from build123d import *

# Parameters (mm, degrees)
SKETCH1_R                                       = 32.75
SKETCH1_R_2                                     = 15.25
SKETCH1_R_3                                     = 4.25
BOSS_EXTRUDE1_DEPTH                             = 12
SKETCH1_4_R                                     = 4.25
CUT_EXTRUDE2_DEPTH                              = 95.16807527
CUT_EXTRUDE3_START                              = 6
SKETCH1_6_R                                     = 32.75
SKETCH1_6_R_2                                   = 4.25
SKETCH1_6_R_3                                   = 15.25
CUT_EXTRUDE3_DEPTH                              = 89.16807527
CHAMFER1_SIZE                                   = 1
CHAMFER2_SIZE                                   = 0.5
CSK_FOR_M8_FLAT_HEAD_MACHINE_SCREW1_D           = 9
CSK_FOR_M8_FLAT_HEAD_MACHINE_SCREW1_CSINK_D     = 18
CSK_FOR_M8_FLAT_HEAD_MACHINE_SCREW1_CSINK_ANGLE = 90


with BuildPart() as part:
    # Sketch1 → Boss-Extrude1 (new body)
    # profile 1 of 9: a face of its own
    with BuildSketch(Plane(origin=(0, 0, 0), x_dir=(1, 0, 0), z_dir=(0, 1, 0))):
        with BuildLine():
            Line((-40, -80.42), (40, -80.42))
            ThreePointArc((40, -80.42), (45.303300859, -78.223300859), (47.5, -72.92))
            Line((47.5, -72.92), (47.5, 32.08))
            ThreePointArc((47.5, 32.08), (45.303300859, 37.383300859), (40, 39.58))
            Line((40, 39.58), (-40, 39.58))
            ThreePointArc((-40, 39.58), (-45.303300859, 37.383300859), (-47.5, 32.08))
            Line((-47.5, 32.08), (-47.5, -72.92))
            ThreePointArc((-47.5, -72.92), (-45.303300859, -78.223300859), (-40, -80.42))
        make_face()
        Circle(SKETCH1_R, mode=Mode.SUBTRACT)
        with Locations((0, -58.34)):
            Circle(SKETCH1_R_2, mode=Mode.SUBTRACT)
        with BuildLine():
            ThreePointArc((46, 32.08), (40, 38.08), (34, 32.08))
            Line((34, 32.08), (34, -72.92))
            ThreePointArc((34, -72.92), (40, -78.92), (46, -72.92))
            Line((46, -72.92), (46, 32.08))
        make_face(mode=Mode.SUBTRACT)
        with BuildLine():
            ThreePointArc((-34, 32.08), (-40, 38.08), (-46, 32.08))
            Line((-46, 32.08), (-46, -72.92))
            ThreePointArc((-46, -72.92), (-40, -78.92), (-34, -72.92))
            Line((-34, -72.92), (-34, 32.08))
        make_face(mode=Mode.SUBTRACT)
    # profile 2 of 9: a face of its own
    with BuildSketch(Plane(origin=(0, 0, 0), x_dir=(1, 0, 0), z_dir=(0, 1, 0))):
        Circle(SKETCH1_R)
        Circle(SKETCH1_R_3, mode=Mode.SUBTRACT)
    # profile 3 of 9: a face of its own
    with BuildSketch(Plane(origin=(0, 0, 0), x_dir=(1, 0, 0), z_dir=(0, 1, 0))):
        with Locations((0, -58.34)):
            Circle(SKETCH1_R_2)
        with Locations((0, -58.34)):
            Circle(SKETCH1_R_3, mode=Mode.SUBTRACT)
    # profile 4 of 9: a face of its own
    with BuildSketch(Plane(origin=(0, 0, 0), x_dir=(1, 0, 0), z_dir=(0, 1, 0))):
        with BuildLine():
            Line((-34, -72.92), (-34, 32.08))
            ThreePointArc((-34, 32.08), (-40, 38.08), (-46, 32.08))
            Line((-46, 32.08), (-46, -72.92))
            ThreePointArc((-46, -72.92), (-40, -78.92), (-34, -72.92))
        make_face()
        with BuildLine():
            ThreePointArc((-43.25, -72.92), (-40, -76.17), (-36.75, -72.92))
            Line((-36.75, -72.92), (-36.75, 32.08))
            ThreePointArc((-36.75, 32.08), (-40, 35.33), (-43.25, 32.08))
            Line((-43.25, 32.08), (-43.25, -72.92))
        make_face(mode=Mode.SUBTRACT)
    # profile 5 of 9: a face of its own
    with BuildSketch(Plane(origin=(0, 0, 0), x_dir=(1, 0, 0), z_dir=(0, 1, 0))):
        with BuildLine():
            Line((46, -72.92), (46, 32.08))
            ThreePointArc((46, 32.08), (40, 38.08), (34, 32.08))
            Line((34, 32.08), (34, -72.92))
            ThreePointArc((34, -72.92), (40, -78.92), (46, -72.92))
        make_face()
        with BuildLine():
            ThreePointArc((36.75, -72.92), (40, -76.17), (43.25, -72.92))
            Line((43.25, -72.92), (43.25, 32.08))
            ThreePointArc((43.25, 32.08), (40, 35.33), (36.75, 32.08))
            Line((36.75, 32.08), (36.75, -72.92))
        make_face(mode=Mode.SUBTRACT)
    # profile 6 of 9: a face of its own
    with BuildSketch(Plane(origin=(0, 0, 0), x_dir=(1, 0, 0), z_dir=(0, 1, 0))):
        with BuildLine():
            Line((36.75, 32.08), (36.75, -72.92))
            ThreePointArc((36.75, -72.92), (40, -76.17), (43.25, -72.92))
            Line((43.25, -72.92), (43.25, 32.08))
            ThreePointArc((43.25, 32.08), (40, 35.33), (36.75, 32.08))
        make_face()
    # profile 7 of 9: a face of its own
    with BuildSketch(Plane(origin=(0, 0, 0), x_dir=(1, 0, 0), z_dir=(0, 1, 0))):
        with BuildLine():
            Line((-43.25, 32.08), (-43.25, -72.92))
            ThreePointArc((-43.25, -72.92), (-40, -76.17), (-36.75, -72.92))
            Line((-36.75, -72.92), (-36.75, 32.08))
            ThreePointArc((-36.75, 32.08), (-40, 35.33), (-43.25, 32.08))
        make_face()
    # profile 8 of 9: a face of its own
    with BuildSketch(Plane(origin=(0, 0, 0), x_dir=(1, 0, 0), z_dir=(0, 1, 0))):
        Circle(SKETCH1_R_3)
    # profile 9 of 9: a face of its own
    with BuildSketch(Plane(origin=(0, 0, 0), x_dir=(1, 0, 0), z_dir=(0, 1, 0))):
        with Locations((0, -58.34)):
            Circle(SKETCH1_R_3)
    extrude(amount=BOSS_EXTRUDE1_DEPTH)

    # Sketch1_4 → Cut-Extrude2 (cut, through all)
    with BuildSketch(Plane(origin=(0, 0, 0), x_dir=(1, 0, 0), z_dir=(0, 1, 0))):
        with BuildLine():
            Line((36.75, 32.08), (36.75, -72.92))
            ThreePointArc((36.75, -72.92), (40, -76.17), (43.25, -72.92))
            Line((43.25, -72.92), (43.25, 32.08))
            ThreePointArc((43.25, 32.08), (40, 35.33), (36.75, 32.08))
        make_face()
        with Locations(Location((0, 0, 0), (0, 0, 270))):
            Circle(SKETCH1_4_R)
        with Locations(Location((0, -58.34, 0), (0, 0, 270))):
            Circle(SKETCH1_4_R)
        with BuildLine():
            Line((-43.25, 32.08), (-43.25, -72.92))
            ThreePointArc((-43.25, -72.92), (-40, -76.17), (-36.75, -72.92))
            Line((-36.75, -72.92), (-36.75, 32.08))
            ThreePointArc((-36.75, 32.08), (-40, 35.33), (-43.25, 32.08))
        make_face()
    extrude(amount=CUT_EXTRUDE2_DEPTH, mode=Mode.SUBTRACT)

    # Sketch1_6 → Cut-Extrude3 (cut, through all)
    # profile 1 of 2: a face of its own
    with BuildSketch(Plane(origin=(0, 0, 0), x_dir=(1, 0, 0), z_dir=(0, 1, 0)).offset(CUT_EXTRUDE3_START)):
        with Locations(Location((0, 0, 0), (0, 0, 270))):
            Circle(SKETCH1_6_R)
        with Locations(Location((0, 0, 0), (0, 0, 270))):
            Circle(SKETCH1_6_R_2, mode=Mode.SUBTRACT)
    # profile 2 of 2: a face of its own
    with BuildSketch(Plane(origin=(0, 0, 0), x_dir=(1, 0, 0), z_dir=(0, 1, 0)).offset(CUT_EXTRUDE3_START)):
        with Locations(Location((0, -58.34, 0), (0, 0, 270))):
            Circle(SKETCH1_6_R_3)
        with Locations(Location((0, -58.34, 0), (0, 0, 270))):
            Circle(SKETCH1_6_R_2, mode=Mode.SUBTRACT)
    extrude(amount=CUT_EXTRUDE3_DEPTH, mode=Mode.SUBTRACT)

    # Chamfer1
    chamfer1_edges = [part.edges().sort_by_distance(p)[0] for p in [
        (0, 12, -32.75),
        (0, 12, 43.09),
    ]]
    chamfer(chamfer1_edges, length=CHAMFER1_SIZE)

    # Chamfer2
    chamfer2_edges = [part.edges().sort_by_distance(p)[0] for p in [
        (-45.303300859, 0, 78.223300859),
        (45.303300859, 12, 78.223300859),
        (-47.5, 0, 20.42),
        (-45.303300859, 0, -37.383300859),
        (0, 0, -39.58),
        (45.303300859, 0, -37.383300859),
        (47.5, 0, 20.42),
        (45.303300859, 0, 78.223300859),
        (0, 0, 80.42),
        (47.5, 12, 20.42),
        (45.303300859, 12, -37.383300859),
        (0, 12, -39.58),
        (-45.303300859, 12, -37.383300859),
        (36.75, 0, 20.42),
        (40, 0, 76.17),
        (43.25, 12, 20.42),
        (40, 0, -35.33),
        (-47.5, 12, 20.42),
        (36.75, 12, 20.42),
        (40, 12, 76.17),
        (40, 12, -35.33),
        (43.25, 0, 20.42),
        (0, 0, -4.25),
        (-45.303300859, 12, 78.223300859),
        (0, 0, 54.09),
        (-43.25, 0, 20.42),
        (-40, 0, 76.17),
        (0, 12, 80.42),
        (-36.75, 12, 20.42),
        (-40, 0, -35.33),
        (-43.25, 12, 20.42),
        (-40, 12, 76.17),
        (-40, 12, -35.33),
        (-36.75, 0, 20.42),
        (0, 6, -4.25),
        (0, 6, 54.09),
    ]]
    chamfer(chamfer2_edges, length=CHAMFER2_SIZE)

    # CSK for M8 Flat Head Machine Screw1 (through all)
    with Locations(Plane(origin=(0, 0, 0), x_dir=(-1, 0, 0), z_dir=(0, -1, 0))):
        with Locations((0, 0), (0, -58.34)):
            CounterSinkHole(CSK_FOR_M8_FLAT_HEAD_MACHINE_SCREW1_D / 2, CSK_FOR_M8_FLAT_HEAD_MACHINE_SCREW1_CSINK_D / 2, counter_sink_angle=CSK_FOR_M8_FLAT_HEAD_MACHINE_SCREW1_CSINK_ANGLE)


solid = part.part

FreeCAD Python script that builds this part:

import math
import FreeCAD as App
import Part
import Sketcher
from FreeCAD import Vector


def edges_at(feature, points):
    """Names of the edges that pass closest to the given points."""
    edges = feature.Shape.Edges
    near = lambda p: min(range(len(edges)), key=lambda i: edges[i].distToShape(Part.Vertex(*p))[0])
    return sorted({f"Edge{near(p) + 1}" for p in points})

doc = App.newDocument("Part")
body = doc.addObject("PartDesign::Body", "Body")

# Sketch on XZ plane
sketch1 = body.newObject("Sketcher::SketchObject", "Sketch")
sketch1.AttachmentSupport = (doc.getObject("XZ_Plane"), [""])
sketch1.MapMode = "FlatFace"
sketch1.addGeometry([
    Part.LineSegment(Vector(-40, 80.42, 0), Vector(40, 80.42, 0)),  # 0
    Part.ArcOfCircle(Part.Circle(Vector(40, 72.92, 0), Vector(0, 0, 1), 7.5), math.radians(0), math.radians(90)),  # 1
    Part.LineSegment(Vector(47.5, 72.92, 0), Vector(47.5, -32.08, 0)),  # 2
    Part.ArcOfCircle(Part.Circle(Vector(40, -32.08, 0), Vector(0, 0, 1), 7.5), math.radians(-90), math.radians(0)),  # 3
    Part.LineSegment(Vector(40, -39.58, 0), Vector(-40, -39.58, 0)),  # 4
    Part.ArcOfCircle(Part.Circle(Vector(-40, -32.08, 0), Vector(0, 0, 1), 7.5), math.radians(180), math.radians(270)),  # 5
    Part.LineSegment(Vector(-47.5, -32.08, 0), Vector(-47.5, 72.92, 0)),  # 6
    Part.ArcOfCircle(Part.Circle(Vector(-40, 72.92, 0), Vector(0, 0, 1), 7.5), math.radians(90), math.radians(180)),  # 7
], False)
sketch1.addConstraint([
    Sketcher.Constraint("Tangent", 0, 2, 1, 2),
    Sketcher.Constraint("Tangent", 1, 1, 2, 1),
    Sketcher.Constraint("Tangent", 2, 2, 3, 2),
    Sketcher.Constraint("Tangent", 3, 1, 4, 1),
    Sketcher.Constraint("Tangent", 4, 2, 5, 2),
    Sketcher.Constraint("Tangent", 5, 1, 6, 1),
    Sketcher.Constraint("Tangent", 6, 2, 7, 2),
    Sketcher.Constraint("Tangent", 7, 1, 0, 1),
    Sketcher.Constraint("Horizontal", 0),
    Sketcher.Constraint("Vertical", 2),
    Sketcher.Constraint("Horizontal", 4),
    Sketcher.Constraint("Vertical", 6),
    Sketcher.Constraint("Equal", 1, 3),
    Sketcher.Constraint("Equal", 3, 5),
    Sketcher.Constraint("Equal", 5, 7),
    Sketcher.Constraint("Radius", 1, 7.5),
    Sketcher.Constraint("DistanceX", 0, 1, 0, 2, 80.0),
    Sketcher.Constraint("DistanceY", 2, 2, 2, 1, 105.0),
    Sketcher.Constraint("DistanceX", -1, 1, 1, 3, 40.0),
    Sketcher.Constraint("DistanceY", -1, 1, 1, 3, 72.92),
])
pad1 = body.newObject("PartDesign::Pad", "Pad")
pad1.Profile = sketch1
pad1.Length = 12
pad1.Reversed = True

# Sketch on XZ plane
sketch2 = body.newObject("Sketcher::SketchObject", "Sketch001")
sketch2.AttachmentSupport = (doc.getObject("XZ_Plane"), [""])
sketch2.MapMode = "FlatFace"
sketch2.addGeometry([
    Part.LineSegment(Vector(36.75, -32.08, 0), Vector(36.75, 72.92, 0)),  # 0
    Part.ArcOfCircle(Part.Circle(Vector(40, 72.92, 0), Vector(0, 0, 1), 3.25), math.radians(0), math.radians(180)),  # 1
    Part.LineSegment(Vector(43.25, 72.92, 0), Vector(43.25, -32.08, 0)),  # 2
    Part.ArcOfCircle(Part.Circle(Vector(40, -32.08, 0), Vector(0, 0, 1), 3.25), math.radians(180), math.radians(360)),  # 3
    Part.Circle(Vector(0, 0, 0), Vector(0, 0, 1), 4.25),  # 4
    Part.Circle(Vector(0, 58.34, 0), Vector(0, 0, 1), 4.25),  # 5
    Part.LineSegment(Vector(-43.25, -32.08, 0), Vector(-43.25, 72.92, 0)),  # 6
    Part.ArcOfCircle(Part.Circle(Vector(-40, 72.92, 0), Vector(0, 0, 1), 3.25), math.radians(0), math.radians(180)),  # 7
    Part.LineSegment(Vector(-36.75, 72.92, 0), Vector(-36.75, -32.08, 0)),  # 8
    Part.ArcOfCircle(Part.Circle(Vector(-40, -32.08, 0), Vector(0, 0, 1), 3.25), math.radians(180), math.radians(360)),  # 9
], False)
sketch2.addConstraint([
    Sketcher.Constraint("Tangent", 0, 2, 1, 2),
    Sketcher.Constraint("Tangent", 1, 1, 2, 1),
    Sketcher.Constraint("Tangent", 2, 2, 3, 2),
    Sketcher.Constraint("Tangent", 3, 1, 0, 1),
    Sketcher.Constraint("Tangent", 6, 2, 7, 2),
    Sketcher.Constraint("Tangent", 7, 1, 8, 1),
    Sketcher.Constraint("Tangent", 8, 2, 9, 2),
    Sketcher.Constraint("Tangent", 9, 1, 6, 1),
    Sketcher.Constraint("Vertical", 0),
    Sketcher.Constraint("Vertical", 2),
    Sketcher.Constraint("Vertical", 6),
    Sketcher.Constraint("Vertical", 8),
    Sketcher.Constraint("Coincident", 4, 3, -1, 1),
    Sketcher.Constraint("Equal", 4, 5),
    Sketcher.Constraint("Equal", 3, 7),
    Sketcher.Constraint("Symmetric", 1, 3, 7, 3, -2),
    Sketcher.Constraint("PointOnObject", 5, 3, -2),
    Sketcher.Constraint("Horizontal", 3, 3, 9, 3),
    Sketcher.Constraint("Diameter", 4, 8.5),
    Sketcher.Constraint("DistanceY", 0, 1, 0, 2, 105.0),
    Sketcher.Constraint("Radius", 1, 3.25),
    Sketcher.Constraint("DistanceX", -1, 1, 1, 3, 40.0),
    Sketcher.Constraint("DistanceY", -1, 1, 1, 3, 72.92),
    Sketcher.Constraint("DistanceY", -1, 1, 5, 3, 58.34),
])
pocket1 = body.newObject("PartDesign::Pocket", "Pocket")
pocket1.Profile = sketch2
pocket1.Type = "ThroughAll"

# Sketch on XZ plane
sketch3 = body.newObject("Sketcher::SketchObject", "Sketch002")
sketch3.AttachmentSupport = (doc.getObject("XZ_Plane"), [""])
sketch3.MapMode = "FlatFace"
sketch3.AttachmentOffset = App.Placement(Vector(0, 0, -6), App.Rotation())
sketch3.addGeometry([
    Part.Circle(Vector(0, 0, 0), Vector(0, 0, 1), 32.75),
    Part.Circle(Vector(0, 0, 0), Vector(0, 0, 1), 4.25),
    Part.Circle(Vector(0, 58.34, 0), Vector(0, 0, 1), 15.25),
    Part.Circle(Vector(0, 58.34, 0), Vector(0, 0, 1), 4.25),
], False)
sketch3.addConstraint([
    Sketcher.Constraint("Coincident", 0, 3, -1, 1),
    Sketcher.Constraint("Coincident", 1, 3, -1, 1),
    Sketcher.Constraint("Coincident", 3, 3, 2, 3),
    Sketcher.Constraint("Equal", 1, 3),
    Sketcher.Constraint("PointOnObject", 2, 3, -2),
    Sketcher.Constraint("Diameter", 0, 65.5),
    Sketcher.Constraint("Diameter", 1, 8.5),
    Sketcher.Constraint("Diameter", 2, 30.5),
    Sketcher.Constraint("DistanceY", -1, 1, 2, 3, 58.34),
])
pocket2 = body.newObject("PartDesign::Pocket", "Pocket001")
pocket2.Profile = sketch3
pocket2.Length = 89.168075
doc.recompute()

chamfer = body.newObject("PartDesign::Chamfer", "Chamfer")
chamfer.Base = (pocket2, edges_at(pocket2, [(0, 12, -32.75), (0, 12, 43.09)]))
chamfer.Size = 1
doc.recompute()

chamfer2 = body.newObject("PartDesign::Chamfer", "Chamfer001")
chamfer2.Base = (chamfer, edges_at(chamfer, [
    (-45.303, 0, 78.223),
    (45.303, 12, 78.223),
    (-47.5, 0, 20.42),
    (-45.303, 0, -37.383),
    (0, 0, -39.58),
    (45.303, 0, -37.383),
    (47.5, 0, 20.42),
    (45.303, 0, 78.223),
    (0, 0, 80.42),
    (47.5, 12, 20.42),
    (45.303, 12, -37.383),
    (0, 12, -39.58),
    (-45.303, 12, -37.383),
    (36.75, 0, 20.42),
    (40, 0, 76.17),
    (43.25, 12, 20.42),
    (40, 0, -35.33),
    (-47.5, 12, 20.42),
    (36.75, 12, 20.42),
    (40, 12, 76.17),
    (40, 12, -35.33),
    (43.25, 0, 20.42),
    (0, 0, -4.25),
    (-45.303, 12, 78.223),
    (0, 0, 54.09),
    (-43.25, 0, 20.42),
    (-40, 0, 76.17),
    (0, 12, 80.42),
    (-36.75, 12, 20.42),
    (-40, 0, -35.33),
    (-43.25, 12, 20.42),
    (-40, 12, 76.17),
    (-40, 12, -35.33),
    (-36.75, 0, 20.42),
    (0, 6, -4.25),
    (0, 6, 54.09),
]))
chamfer2.Size = 0.5

# Sketch on XZ plane
sketch4 = body.newObject("Sketcher::SketchObject", "Sketch003")
sketch4.AttachmentSupport = (doc.getObject("XZ_Plane"), [""])
sketch4.MapMode = "FlatFace"
sketch4.addGeometry([
    Part.Circle(Vector(0, 0, 0), Vector(0, 0, 1), 4.5),
    Part.Circle(Vector(0, 58.34, 0), Vector(0, 0, 1), 4.5),
], False)
sketch4.addConstraint([
    Sketcher.Constraint("Coincident", 0, 3, -1, 1),
    Sketcher.Constraint("Equal", 0, 1),
    Sketcher.Constraint("PointOnObject", 1, 3, -2),
    Sketcher.Constraint("Diameter", 0, 9.0),
    Sketcher.Constraint("DistanceY", -1, 1, 1, 3, 58.34),
])
doc.recompute()
hole = body.newObject("PartDesign::Hole", "Hole")
hole.Profile = sketch4
hole.ThreadType = "None"
hole.Diameter = 9
hole.DepthType = "ThroughAll"
hole.HoleCutType = "Countersink"
hole.HoleCutDiameter = 18
hole.HoleCutCountersinkAngle = 90

doc.recompute()
